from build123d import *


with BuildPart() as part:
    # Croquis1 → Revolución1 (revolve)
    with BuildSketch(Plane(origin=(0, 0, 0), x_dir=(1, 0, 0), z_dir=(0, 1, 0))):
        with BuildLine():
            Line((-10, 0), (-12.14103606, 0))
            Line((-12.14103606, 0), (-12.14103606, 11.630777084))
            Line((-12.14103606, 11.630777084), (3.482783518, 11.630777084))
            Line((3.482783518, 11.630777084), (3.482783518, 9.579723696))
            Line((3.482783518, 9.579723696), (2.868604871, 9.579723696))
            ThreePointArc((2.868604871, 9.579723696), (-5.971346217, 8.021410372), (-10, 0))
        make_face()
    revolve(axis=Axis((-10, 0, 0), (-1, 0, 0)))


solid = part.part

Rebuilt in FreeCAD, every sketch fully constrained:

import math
import FreeCAD as App
import Part
import Sketcher

V = App.Vector

doc = App.newDocument("Part")
body = doc.addObject("PartDesign::Body", "Body")

# Sketch on XZ plane
sketch1 = doc.addObject("Sketcher::SketchObject", "Sketch")
body.addObject(sketch1)
sketch1.AttachmentSupport = (doc.XZ_Plane, [""])
sketch1.MapMode = "FlatFace"
sketch1.addGeometry([
    Part.LineSegment(V(-12.141036, 0, 0), V(-10, 0, 0)),  # 0
    Part.ArcOfCircle(Part.Circle(V(0, 0, 0), V(0, 0, 1), 10), math.radians(180), math.radians(286.670091)),  # 1
    Part.LineSegment(V(2.868605, -9.579724, 0), V(3.482784, -9.579724, 0)),  # 2
    Part.LineSegment(V(3.482784, -9.579724, 0), V(3.482784, -11.630777, 0)),  # 3
    Part.LineSegment(V(3.482784, -11.630777, 0), V(-12.141036, -11.630777, 0)),  # 4
    Part.LineSegment(V(-12.141036, -11.630777, 0), V(-12.141036, 0, 0)),  # 5
], False)
sketch1.addConstraint([
    Sketcher.Constraint("Coincident", 0, 2, 1, 1),
    Sketcher.Constraint("Coincident", 1, 2, 2, 1),
    Sketcher.Constraint("Coincident", 2, 2, 3, 1),
    Sketcher.Constraint("Coincident", 3, 2, 4, 1),
    Sketcher.Constraint("Coincident", 4, 2, 5, 1),
    Sketcher.Constraint("Coincident", 5, 2, 0, 1),
    Sketcher.Constraint("Horizontal", 0),
    Sketcher.Constraint("Horizontal", 2),
    Sketcher.Constraint("Vertical", 3),
    Sketcher.Constraint("Horizontal", 4),
    Sketcher.Constraint("Vertical", 5),
    Sketcher.Constraint("Coincident", 1, 3, -1, 1),
    Sketcher.Constraint("PointOnObject", 0, 2, -1),
    Sketcher.Constraint("Radius", 1, 10.0),
    Sketcher.Constraint("DistanceX", 2, 1, 2, 2, 0.614179),
    Sketcher.Constraint("DistanceX", 4, 2, 4, 1, 15.62382),
    Sketcher.Constraint("DistanceX", 0, 1, 0, 2, 2.141036),
    Sketcher.Constraint("DistanceY", 3, 2, 3, 1, 2.051053),
])
revolution = doc.addObject("PartDesign::Revolution", "Revolution")
body.addObject(revolution)
revolution.Profile = sketch1
revolution.ReferenceAxis = (sketch1, ["H_Axis"])
revolution.Angle = 360

doc.recompute()
